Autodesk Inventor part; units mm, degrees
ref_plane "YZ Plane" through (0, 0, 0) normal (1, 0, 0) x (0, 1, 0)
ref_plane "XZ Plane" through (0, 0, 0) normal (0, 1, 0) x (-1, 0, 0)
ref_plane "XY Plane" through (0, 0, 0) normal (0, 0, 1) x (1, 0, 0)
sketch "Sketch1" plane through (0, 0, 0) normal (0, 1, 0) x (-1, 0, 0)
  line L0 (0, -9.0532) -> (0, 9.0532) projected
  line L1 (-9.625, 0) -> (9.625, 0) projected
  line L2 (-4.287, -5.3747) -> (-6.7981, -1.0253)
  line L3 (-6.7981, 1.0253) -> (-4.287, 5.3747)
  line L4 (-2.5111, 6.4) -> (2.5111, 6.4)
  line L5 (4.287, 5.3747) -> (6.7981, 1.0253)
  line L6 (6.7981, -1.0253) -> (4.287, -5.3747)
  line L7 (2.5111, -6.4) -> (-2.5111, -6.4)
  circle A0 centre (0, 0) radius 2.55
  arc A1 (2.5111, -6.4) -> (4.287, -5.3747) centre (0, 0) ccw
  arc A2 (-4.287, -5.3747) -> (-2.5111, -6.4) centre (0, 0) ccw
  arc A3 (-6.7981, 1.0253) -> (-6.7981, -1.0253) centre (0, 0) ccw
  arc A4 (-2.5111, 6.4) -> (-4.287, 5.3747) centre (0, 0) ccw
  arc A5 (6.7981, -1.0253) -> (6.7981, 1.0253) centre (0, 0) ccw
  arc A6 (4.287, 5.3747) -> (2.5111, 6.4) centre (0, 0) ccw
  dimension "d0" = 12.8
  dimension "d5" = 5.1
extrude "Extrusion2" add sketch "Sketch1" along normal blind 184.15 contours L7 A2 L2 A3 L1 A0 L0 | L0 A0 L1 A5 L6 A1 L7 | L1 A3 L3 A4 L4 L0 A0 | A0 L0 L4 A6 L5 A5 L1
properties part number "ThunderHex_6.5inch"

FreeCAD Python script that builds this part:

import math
import FreeCAD as App
import Part
import Sketcher

V = App.Vector
Q = App.Units.Quantity

doc = App.newDocument("Part")
body = doc.addObject("PartDesign::Body", "Body")

# Sketch on XZ plane
sketch1 = doc.addObject("Sketcher::SketchObject", "Sketch")
body.addObject(sketch1)
sketch1.AttachmentSupport = (doc.XZ_Plane, [""])
sketch1.MapMode = "FlatFace"
sketch1.addGeometry([
    Part.LineSegment(V(2.5, -6.4, 0), V(-2.5, -6.4, 0)),  # 0
    Part.ArcOfCircle(Part.Circle(V(0, 0, 0), V(0, 0, 1), 6.9), math.radians(-128.58), math.radians(-111.42)),  # 1
    Part.LineSegment(V(-4.3, -5.4, 0), V(-6.8, -1, 0)),  # 2
    Part.ArcOfCircle(Part.Circle(V(0, 0, 0), V(0, 0, 1), 6.9), math.radians(171.42), math.radians(188.58)),  # 3
    Part.LineSegment(V(-6.8, 1, 0), V(-4.3, 5.4, 0)),  # 4
    Part.ArcOfCircle(Part.Circle(V(0, 0, 0), V(0, 0, 1), 6.9), math.radians(111.42), math.radians(128.58)),  # 5
    Part.LineSegment(V(-2.5, 6.4, 0), V(2.5, 6.4, 0)),  # 6
    Part.ArcOfCircle(Part.Circle(V(0, 0, 0), V(0, 0, 1), 6.9), math.radians(51.42), math.radians(68.58)),  # 7
    Part.LineSegment(V(4.3, 5.4, 0), V(6.8, 1, 0)),  # 8
    Part.ArcOfCircle(Part.Circle(V(0, 0, 0), V(0, 0, 1), 6.9), math.radians(-8.58), math.radians(8.58)),  # 9
    Part.LineSegment(V(6.8, -1, 0), V(4.3, -5.4, 0)),  # 10
    Part.ArcOfCircle(Part.Circle(V(0, 0, 0), V(0, 0, 1), 6.9), math.radians(-68.58), math.radians(-51.42)),  # 11
    Part.Circle(V(0, 0, 0), V(0, 0, 1), 2.5),  # 12
], False)
sketch1.addConstraint([
    Sketcher.Constraint("Coincident", 0, 2, 1, 2),
    Sketcher.Constraint("Coincident", 1, 1, 2, 1),
    Sketcher.Constraint("Coincident", 2, 2, 3, 2),
    Sketcher.Constraint("Coincident", 3, 1, 4, 1),
    Sketcher.Constraint("Coincident", 4, 2, 5, 2),
    Sketcher.Constraint("Coincident", 5, 1, 6, 1),
    Sketcher.Constraint("Coincident", 6, 2, 7, 2),
    Sketcher.Constraint("Coincident", 7, 1, 8, 1),
    Sketcher.Constraint("Coincident", 8, 2, 9, 2),
    Sketcher.Constraint("Coincident", 9, 1, 10, 1),
    Sketcher.Constraint("Coincident", 10, 2, 11, 2),
    Sketcher.Constraint("Coincident", 11, 1, 0, 1),
    Sketcher.Constraint("Horizontal", 0),
    Sketcher.Constraint("Horizontal", 6),
    Sketcher.Constraint("Coincident", 1, 3, -1, 1),
    Sketcher.Constraint("Coincident", 3, 3, -1, 1),
    Sketcher.Constraint("Coincident", 5, 3, -1, 1),
    Sketcher.Constraint("Coincident", 7, 3, -1, 1),
    Sketcher.Constraint("Coincident", 9, 3, -1, 1),
    Sketcher.Constraint("Coincident", 11, 3, -1, 1),
    Sketcher.Constraint("Coincident", 12, 3, -1, 1),
    Sketcher.Constraint("Equal", 1, 3),
    Sketcher.Constraint("Equal", 3, 5),
    Sketcher.Constraint("Equal", 5, 7),
    Sketcher.Constraint("Equal", 7, 9),
    Sketcher.Constraint("Equal", 9, 11),
    Sketcher.Constraint("Parallel", 2, 8),
    Sketcher.Constraint("Parallel", 4, 10),
    Sketcher.Constraint("Horizontal", 4, 2, 7, 1),
    Sketcher.Constraint("Horizontal", 3, 1, 8, 2),
    Sketcher.Constraint("Horizontal", 2, 2, 9, 1),
    Sketcher.Constraint("Vertical", 2, 2, 3, 1),
    Sketcher.Constraint("Vertical", 0, 2, 5, 1),
    Sketcher.Constraint("Diameter", 12, Q("5.1 mm")),
    Sketcher.Constraint("Angle", 2, Q("119.9997 deg")),
    Sketcher.Constraint("Radius", 1, Q("6.875 mm")),
    Sketcher.Constraint("DistanceY", 0, 2, -1, 1, Q("6.4 mm")),
    Sketcher.Constraint("DistanceY", 2, 2, 4, 2, Q("6.4 mm")),
])
pad1 = doc.addObject("PartDesign::Pad", "Pad")
body.addObject(pad1)
pad1.Profile = sketch1
pad1.Length = 184.15
pad1.Reversed = True

doc.recompute()
